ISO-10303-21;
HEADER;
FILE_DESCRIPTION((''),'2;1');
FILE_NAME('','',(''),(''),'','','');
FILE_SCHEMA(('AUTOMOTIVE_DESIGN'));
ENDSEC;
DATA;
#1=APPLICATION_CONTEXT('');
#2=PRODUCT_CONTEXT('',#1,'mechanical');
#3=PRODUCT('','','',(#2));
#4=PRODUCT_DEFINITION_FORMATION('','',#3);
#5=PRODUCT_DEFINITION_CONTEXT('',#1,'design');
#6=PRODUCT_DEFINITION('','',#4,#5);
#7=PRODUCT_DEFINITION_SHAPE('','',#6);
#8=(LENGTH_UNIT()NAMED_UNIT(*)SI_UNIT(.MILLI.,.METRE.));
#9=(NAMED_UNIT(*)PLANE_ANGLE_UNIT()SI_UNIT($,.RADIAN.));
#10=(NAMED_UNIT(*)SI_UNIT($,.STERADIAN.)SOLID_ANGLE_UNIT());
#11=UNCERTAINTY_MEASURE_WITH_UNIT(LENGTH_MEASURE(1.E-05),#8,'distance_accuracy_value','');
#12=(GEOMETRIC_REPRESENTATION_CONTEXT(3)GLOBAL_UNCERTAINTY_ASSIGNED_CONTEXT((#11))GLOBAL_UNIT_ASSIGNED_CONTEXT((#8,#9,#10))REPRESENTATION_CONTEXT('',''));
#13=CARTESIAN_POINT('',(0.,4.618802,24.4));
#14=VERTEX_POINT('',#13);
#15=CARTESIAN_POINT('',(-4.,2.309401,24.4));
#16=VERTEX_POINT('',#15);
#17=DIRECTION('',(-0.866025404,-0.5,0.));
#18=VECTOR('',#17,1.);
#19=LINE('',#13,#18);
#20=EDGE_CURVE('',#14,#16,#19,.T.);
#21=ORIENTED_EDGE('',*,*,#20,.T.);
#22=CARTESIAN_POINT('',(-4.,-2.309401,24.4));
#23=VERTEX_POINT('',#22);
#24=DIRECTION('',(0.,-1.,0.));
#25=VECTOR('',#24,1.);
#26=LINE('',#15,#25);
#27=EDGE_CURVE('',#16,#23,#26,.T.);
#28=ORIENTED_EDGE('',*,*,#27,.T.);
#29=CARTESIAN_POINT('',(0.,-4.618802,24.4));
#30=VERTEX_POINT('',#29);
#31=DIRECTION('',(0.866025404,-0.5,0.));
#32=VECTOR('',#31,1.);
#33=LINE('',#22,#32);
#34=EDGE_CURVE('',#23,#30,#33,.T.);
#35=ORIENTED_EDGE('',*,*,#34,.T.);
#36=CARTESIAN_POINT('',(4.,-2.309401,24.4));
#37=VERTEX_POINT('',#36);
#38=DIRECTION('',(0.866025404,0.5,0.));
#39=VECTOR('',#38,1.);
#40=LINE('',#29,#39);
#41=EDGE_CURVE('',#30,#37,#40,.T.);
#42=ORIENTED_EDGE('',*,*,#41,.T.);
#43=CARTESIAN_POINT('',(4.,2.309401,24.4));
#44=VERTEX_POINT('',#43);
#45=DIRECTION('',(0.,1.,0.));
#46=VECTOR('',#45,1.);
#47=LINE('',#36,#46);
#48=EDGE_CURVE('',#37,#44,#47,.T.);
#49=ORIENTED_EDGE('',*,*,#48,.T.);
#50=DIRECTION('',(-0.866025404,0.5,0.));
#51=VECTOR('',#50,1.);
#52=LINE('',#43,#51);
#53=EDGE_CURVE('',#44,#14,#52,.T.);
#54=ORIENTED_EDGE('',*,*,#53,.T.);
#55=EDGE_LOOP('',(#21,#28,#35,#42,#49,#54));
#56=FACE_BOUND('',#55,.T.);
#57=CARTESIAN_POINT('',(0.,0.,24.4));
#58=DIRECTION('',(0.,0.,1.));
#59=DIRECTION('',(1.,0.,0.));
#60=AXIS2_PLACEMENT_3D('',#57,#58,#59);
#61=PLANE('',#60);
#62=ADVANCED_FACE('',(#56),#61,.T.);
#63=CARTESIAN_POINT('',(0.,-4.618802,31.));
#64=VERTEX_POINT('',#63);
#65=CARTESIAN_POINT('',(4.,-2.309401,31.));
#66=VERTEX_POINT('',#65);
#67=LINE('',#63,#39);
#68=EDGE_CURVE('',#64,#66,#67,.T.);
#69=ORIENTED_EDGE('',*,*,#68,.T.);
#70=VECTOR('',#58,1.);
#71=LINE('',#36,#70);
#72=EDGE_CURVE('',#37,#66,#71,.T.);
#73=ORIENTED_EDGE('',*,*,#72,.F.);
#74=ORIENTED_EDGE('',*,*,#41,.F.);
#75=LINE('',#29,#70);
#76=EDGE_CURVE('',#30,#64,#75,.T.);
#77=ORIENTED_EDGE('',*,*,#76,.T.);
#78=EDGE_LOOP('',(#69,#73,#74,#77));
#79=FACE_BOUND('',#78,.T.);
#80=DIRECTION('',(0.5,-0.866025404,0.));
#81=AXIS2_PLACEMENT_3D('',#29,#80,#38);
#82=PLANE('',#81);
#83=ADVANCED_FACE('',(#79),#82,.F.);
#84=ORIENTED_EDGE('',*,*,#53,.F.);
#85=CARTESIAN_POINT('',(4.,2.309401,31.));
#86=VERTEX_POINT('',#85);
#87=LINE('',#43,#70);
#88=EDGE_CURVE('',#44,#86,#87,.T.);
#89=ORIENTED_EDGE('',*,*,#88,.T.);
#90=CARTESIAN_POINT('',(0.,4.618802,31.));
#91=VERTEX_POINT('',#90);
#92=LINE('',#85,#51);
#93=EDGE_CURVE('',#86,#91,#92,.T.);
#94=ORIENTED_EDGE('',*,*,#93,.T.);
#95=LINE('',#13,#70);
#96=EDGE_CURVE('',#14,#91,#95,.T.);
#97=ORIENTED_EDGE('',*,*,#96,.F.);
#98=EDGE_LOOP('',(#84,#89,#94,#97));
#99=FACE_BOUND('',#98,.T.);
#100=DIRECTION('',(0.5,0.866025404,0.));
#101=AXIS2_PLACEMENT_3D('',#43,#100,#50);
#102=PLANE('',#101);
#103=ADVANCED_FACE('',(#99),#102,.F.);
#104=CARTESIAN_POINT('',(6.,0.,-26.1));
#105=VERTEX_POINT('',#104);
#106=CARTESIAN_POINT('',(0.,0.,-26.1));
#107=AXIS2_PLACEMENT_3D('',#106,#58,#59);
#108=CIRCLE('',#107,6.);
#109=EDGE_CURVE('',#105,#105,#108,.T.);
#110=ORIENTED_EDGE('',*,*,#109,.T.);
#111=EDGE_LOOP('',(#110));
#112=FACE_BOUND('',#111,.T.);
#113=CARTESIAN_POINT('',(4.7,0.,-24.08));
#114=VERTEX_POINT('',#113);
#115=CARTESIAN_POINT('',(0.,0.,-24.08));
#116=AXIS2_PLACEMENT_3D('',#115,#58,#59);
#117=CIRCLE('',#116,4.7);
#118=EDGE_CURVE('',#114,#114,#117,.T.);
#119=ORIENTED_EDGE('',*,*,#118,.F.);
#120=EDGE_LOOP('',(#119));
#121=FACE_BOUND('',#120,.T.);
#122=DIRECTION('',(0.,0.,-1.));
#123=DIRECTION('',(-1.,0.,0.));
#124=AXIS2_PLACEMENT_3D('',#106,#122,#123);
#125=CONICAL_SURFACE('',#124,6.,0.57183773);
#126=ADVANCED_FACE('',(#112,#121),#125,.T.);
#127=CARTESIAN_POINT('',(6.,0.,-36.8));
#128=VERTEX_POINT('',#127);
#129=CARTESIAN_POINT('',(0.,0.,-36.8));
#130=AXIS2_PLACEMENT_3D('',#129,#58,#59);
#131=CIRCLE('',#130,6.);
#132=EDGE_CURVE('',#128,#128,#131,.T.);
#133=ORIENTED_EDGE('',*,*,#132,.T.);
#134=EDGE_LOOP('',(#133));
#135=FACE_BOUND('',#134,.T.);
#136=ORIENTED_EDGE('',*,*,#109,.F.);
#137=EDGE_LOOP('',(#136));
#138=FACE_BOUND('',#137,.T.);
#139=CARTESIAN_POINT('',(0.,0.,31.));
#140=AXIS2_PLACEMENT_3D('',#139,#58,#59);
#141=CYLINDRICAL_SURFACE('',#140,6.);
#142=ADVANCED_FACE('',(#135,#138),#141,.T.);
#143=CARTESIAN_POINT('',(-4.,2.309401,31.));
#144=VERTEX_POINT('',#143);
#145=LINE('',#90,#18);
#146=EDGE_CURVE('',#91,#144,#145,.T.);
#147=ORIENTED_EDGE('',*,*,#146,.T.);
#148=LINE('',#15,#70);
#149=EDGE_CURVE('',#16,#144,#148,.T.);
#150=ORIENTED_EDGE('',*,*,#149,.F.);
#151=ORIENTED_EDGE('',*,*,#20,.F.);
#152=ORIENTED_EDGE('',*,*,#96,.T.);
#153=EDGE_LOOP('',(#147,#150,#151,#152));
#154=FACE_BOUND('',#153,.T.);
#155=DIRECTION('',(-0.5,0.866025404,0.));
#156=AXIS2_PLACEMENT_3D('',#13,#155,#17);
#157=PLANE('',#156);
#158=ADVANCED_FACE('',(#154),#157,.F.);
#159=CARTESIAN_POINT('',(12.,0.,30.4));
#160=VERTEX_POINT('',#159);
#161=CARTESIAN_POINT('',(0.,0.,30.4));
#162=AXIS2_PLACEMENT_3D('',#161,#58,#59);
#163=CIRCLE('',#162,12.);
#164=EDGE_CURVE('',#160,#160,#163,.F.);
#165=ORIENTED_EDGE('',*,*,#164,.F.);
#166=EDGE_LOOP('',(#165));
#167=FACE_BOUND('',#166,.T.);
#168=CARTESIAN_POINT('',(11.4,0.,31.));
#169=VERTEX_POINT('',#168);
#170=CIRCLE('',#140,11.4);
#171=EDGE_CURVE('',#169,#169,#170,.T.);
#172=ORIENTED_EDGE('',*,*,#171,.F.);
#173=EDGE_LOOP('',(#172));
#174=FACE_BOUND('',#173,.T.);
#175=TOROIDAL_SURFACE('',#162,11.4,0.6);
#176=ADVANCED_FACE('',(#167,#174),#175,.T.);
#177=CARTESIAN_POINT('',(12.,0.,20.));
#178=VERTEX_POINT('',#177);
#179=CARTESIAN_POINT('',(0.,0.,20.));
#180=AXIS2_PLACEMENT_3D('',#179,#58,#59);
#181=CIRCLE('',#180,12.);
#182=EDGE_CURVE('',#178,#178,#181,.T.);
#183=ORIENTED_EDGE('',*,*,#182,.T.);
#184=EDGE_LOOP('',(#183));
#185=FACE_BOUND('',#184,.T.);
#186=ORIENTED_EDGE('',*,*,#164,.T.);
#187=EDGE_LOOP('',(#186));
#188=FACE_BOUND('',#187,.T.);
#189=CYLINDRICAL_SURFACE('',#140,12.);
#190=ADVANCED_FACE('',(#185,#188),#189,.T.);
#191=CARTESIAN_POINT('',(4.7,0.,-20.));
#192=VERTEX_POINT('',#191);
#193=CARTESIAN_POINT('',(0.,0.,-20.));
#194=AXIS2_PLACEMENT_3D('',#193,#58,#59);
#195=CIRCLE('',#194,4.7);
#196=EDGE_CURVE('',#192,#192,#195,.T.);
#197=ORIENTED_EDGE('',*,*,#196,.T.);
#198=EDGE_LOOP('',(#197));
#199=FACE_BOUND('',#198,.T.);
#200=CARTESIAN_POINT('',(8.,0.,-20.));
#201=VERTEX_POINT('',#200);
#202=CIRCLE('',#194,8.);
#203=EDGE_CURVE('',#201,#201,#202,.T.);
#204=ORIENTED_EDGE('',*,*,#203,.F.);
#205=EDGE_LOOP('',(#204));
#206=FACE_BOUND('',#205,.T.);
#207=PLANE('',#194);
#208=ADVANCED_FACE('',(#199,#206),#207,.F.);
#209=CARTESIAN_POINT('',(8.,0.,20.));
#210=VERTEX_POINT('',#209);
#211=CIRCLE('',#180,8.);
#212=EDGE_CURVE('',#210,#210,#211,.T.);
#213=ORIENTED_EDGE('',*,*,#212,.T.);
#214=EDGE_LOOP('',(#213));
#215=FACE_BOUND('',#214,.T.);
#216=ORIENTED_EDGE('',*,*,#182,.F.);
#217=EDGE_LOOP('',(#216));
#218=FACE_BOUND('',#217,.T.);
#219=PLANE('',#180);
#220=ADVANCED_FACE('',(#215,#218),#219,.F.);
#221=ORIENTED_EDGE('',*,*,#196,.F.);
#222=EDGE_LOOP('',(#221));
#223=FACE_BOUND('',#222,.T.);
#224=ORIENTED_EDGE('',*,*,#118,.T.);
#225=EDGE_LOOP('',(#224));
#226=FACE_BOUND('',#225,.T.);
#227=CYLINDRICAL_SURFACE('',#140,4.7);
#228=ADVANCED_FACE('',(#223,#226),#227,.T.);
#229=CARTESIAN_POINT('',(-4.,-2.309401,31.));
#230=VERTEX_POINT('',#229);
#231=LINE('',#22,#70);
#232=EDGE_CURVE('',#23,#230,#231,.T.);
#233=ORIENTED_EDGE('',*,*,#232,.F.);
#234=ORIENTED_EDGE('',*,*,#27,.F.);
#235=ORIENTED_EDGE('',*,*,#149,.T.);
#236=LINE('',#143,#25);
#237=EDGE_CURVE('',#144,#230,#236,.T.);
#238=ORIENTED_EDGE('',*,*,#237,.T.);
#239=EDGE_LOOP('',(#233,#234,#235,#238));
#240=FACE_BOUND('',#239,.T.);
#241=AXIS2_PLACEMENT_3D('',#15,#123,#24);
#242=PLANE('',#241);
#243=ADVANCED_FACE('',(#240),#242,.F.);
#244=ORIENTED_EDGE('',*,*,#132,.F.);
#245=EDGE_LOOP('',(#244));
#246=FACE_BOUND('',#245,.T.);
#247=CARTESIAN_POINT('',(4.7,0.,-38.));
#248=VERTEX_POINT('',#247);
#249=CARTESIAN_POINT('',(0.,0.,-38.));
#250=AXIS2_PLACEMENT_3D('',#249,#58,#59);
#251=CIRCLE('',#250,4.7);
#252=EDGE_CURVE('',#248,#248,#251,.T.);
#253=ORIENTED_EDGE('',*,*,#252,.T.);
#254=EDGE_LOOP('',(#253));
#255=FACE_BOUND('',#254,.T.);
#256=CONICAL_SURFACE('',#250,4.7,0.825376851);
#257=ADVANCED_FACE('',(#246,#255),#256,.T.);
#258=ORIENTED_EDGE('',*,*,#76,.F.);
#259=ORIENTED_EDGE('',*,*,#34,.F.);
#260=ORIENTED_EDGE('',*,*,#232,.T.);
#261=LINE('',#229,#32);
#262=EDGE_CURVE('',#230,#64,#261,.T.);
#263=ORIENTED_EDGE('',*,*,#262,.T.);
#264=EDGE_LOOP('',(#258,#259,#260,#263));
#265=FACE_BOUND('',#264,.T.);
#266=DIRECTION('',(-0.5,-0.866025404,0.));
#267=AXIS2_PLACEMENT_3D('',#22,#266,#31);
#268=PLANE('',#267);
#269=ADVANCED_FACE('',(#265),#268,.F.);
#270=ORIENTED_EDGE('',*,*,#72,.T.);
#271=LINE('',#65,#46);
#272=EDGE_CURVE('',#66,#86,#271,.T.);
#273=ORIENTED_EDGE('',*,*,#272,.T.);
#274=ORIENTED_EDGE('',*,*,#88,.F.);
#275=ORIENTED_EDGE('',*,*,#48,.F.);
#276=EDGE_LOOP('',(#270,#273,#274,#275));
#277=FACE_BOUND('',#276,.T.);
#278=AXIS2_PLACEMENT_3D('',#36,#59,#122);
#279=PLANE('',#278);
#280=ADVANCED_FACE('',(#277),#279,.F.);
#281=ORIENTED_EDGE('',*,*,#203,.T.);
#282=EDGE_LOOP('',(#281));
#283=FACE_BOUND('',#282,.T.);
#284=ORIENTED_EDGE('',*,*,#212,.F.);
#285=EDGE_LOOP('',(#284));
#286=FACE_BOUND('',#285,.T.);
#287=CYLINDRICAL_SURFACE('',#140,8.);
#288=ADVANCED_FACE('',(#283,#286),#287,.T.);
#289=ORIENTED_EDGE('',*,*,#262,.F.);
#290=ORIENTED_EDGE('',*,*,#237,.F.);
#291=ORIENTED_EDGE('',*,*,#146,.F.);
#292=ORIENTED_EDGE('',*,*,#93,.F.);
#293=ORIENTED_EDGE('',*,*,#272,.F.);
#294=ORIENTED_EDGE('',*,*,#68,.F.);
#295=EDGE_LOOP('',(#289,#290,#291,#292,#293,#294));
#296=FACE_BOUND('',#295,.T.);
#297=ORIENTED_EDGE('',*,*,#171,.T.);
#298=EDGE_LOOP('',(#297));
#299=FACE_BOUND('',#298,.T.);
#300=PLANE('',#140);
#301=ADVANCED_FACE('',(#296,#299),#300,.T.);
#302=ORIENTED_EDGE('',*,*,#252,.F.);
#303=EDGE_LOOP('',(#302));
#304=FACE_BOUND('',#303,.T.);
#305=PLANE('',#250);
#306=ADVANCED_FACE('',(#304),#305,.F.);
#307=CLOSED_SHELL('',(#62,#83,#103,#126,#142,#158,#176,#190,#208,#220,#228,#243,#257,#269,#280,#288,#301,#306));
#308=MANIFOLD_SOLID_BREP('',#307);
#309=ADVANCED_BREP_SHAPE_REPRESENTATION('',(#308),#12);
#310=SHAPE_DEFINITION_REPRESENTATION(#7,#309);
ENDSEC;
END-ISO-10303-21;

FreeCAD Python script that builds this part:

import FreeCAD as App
import Part
import Sketcher

V = App.Vector
Q = App.Units.Quantity


def edges_at(feature, points):
    """Names of the edges that pass closest to the given points."""
    edges = feature.Shape.Edges
    near = lambda p: min(range(len(edges)), key=lambda i: edges[i].distToShape(Part.Vertex(*p))[0])
    return sorted({f"Edge{near(p) + 1}" for p in points})

doc = App.newDocument("Part")
body = doc.addObject("PartDesign::Body", "Body")

# Sketch on XZ plane
sketch1 = doc.addObject("Sketcher::SketchObject", "Sketch")
body.addObject(sketch1)
sketch1.AttachmentSupport = (doc.XZ_Plane, [""])
sketch1.MapMode = "FlatFace"
sketch1.addGeometry([
    Part.LineSegment(V(0, 31, 0), V(0, -38, 0)),  # 0
    Part.LineSegment(V(0, -38, 0), V(-4.7, -38, 0)),  # 1
    Part.LineSegment(V(-4.7, -38, 0), V(-6, -36.8, 0)),  # 2
    Part.LineSegment(V(-6, -36.8, 0), V(-6, -26.1, 0)),  # 3
    Part.LineSegment(V(-6, -26.1, 0), V(-4.7, -24.08, 0)),  # 4
    Part.LineSegment(V(-4.7, -24.08, 0), V(-4.7, -20, 0)),  # 5
    Part.LineSegment(V(-4.7, -20, 0), V(-8, -20, 0)),  # 6
    Part.LineSegment(V(-8, -20, 0), V(-8, 20, 0)),  # 7
    Part.LineSegment(V(-8, 20, 0), V(-12, 20, 0)),  # 8
    Part.LineSegment(V(-12, 20, 0), V(-12, 31, 0)),  # 9
    Part.LineSegment(V(-12, 31, 0), V(0, 31, 0)),  # 10
], False)
sketch1.addConstraint([
    Sketcher.Constraint("Coincident", 0, 2, 1, 1),
    Sketcher.Constraint("Coincident", 1, 2, 2, 1),
    Sketcher.Constraint("Coincident", 2, 2, 3, 1),
    Sketcher.Constraint("Coincident", 3, 2, 4, 1),
    Sketcher.Constraint("Coincident", 4, 2, 5, 1),
    Sketcher.Constraint("Coincident", 5, 2, 6, 1),
    Sketcher.Constraint("Coincident", 6, 2, 7, 1),
    Sketcher.Constraint("Coincident", 7, 2, 8, 1),
    Sketcher.Constraint("Coincident", 8, 2, 9, 1),
    Sketcher.Constraint("Coincident", 9, 2, 10, 1),
    Sketcher.Constraint("Coincident", 10, 2, 0, 1),
    Sketcher.Constraint("Vertical", 0),
    Sketcher.Constraint("Horizontal", 1),
    Sketcher.Constraint("Vertical", 3),
    Sketcher.Constraint("Vertical", 5),
    Sketcher.Constraint("Horizontal", 6),
    Sketcher.Constraint("Vertical", 7),
    Sketcher.Constraint("Horizontal", 8),
    Sketcher.Constraint("Vertical", 9),
    Sketcher.Constraint("Horizontal", 10),
    Sketcher.Constraint("PointOnObject", 0, 2, -2),
    Sketcher.Constraint("Vertical", 1, 2, 4, 2),
    Sketcher.Constraint("DistanceX", 8, 2, 8, 1, 4.0),
    Sketcher.Constraint("DistanceX", 10, 1, 10, 2, 12.0),
    Sketcher.Constraint("DistanceY", 0, 2, 0, 1, 69.0),
    Sketcher.Constraint("DistanceY", 7, 1, 7, 2, 40.0),
    Sketcher.Constraint("DistanceY", 9, 1, 9, 2, 11.0),
    Sketcher.Constraint("DistanceX", 1, 2, 1, 1, 4.7),
    Sketcher.Constraint("DistanceY", 3, 1, 3, 2, 10.7),
    Sketcher.Constraint("DistanceY", 0, 2, -1, 1, 38.0),
    Sketcher.Constraint("DistanceX", 2, 2, -1, 1, 6.0),
    Sketcher.Constraint("DistanceY", 5, 1, 5, 2, 4.08),
    Sketcher.Constraint("DistanceY", 2, 2, -1, 1, 36.8),
])
revolution = doc.addObject("PartDesign::Revolution", "Revolution")
body.addObject(revolution)
revolution.Profile = sketch1
revolution.ReferenceAxis = (sketch1, ["V_Axis"])
revolution.Angle = 360

# Sketch on XY plane
sketch2 = doc.addObject("Sketcher::SketchObject", "Sketch001")
body.addObject(sketch2)
sketch2.AttachmentSupport = (doc.XY_Plane, [""])
sketch2.MapMode = "FlatFace"
sketch2.AttachmentOffset = App.Placement(V(0, 0, 31), App.Rotation())
sketch2.addGeometry([
    Part.LineSegment(V(4, 2.309401, 0), V(0, 4.618802, 0)),  # 0
    Part.LineSegment(V(0, 4.618802, 0), V(-4, 2.309401, 0)),  # 1
    Part.LineSegment(V(-4, 2.309401, 0), V(-4, -2.309401, 0)),  # 2
    Part.LineSegment(V(-4, -2.309401, 0), V(0, -4.618802, 0)),  # 3
    Part.LineSegment(V(0, -4.618802, 0), V(4, -2.309401, 0)),  # 4
    Part.LineSegment(V(4, -2.309401, 0), V(4, 2.309401, 0)),  # 5
], False)
sketch2.addConstraint([
    Sketcher.Constraint("Coincident", 0, 2, 1, 1),
    Sketcher.Constraint("Coincident", 1, 2, 2, 1),
    Sketcher.Constraint("Coincident", 2, 2, 3, 1),
    Sketcher.Constraint("Coincident", 3, 2, 4, 1),
    Sketcher.Constraint("Coincident", 4, 2, 5, 1),
    Sketcher.Constraint("Coincident", 5, 2, 0, 1),
    Sketcher.Constraint("Vertical", 2),
    Sketcher.Constraint("Vertical", 5),
    Sketcher.Constraint("Symmetric", 0, 2, 3, 2, -1, 1),
    Sketcher.Constraint("Symmetric", 1, 2, 4, 2, -1, 1),
    Sketcher.Constraint("PointOnObject", 0, 2, -2),
    Sketcher.Constraint("Parallel", 0, 3),
    Sketcher.Constraint("Horizontal", 2, 2, 4, 2),
    Sketcher.Constraint("Angle", 0, Q("150 deg")),
    Sketcher.Constraint("DistanceX", 1, 2, -1, 1, 4.0),
    Sketcher.Constraint("DistanceY", -1, 1, 1, 2, 2.309401),
])
pocket1 = doc.addObject("PartDesign::Pocket", "Pocket")
body.addObject(pocket1)
pocket1.Profile = sketch2
pocket1.Length = 6.6
doc.recompute()

fillet = doc.addObject("PartDesign::Fillet", "Fillet")
body.addObject(fillet)
fillet.Base = (pocket1, edges_at(pocket1, [(-12, 0, 31)]))
fillet.Radius = 0.6

doc.recompute()
